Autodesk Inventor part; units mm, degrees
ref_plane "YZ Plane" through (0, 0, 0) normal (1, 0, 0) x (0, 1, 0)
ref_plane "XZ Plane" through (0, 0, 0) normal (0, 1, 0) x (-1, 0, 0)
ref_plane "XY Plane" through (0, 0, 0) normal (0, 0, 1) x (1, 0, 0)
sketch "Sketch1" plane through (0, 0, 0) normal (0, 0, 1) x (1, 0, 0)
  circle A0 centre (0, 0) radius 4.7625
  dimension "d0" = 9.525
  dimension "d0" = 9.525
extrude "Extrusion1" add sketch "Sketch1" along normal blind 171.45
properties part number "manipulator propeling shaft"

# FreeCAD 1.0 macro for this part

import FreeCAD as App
import Part
import Sketcher
Q = App.Units.Quantity

doc = App.newDocument("Part")
body = doc.addObject("PartDesign::Body", "Body")

# Sketch on XY plane
sketch1 = doc.addObject("Sketcher::SketchObject", "Sketch")
body.addObject(sketch1)
sketch1.AttachmentSupport = (doc.XY_Plane, [""])
sketch1.MapMode = "FlatFace"
sketch1.addGeometry(Part.Circle(App.Vector(0, 0, 0), App.Vector(0, 0, 1), 4.8), False)
sketch1.addConstraint(Sketcher.Constraint("Coincident", 0, 3, -1, 1))
sketch1.addConstraint(Sketcher.Constraint("Diameter", 0, Q("0.375 in")))
pad1 = doc.addObject("PartDesign::Pad", "Pad")
body.addObject(pad1)
pad1.Profile = sketch1
pad1.Length = Q("6.75 in")

doc.recompute()
